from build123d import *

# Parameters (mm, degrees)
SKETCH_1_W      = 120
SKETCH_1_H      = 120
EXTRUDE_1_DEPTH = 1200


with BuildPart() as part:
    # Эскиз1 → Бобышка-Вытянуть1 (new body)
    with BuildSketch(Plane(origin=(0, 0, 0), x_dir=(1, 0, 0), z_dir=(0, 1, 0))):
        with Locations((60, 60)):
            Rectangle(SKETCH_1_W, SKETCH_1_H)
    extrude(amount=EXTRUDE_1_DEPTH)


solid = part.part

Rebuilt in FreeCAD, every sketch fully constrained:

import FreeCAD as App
import Part
import Sketcher
Q = App.Units.Quantity

doc = App.newDocument("Part")
body = doc.addObject("PartDesign::Body", "Body")

sketch1 = body.newObject("Sketcher::SketchObject", "Sketch")
sketch1.AttachmentSupport = (doc.getObject("XZ_Plane"), [""])
sketch1.MapMode = "FlatFace"
sketch1.addGeometry([
    Part.LineSegment(App.Vector(0, -120, 0), App.Vector(0, 0, 0)),
    Part.LineSegment(App.Vector(0, 0, 0), App.Vector(120, 0, 0)),
    Part.LineSegment(App.Vector(120, 0, 0), App.Vector(120, -120, 0)),
    Part.LineSegment(App.Vector(120, -120, 0), App.Vector(0, -120, 0)),
], False)
sketch1.addConstraint([
    Sketcher.Constraint("Coincident", 0, 2, 1, 1),
    Sketcher.Constraint("Coincident", 1, 2, 2, 1),
    Sketcher.Constraint("Coincident", 2, 2, 3, 1),
    Sketcher.Constraint("Coincident", 3, 2, 0, 1),
    Sketcher.Constraint("Vertical", 0),
    Sketcher.Constraint("Horizontal", 1),
    Sketcher.Constraint("Vertical", 2),
    Sketcher.Constraint("Horizontal", 3),
    Sketcher.Constraint("Coincident", 0, 2, -1, 1),
    Sketcher.Constraint("Equal", 3, 0),
    Sketcher.Constraint("DistanceX", 1, 1, 1, 2, Q("120 mm")),
])
pad1 = body.newObject("PartDesign::Pad", "Pad")
pad1.Profile = sketch1
pad1.Length = 1200
pad1.Reversed = True

doc.recompute()
